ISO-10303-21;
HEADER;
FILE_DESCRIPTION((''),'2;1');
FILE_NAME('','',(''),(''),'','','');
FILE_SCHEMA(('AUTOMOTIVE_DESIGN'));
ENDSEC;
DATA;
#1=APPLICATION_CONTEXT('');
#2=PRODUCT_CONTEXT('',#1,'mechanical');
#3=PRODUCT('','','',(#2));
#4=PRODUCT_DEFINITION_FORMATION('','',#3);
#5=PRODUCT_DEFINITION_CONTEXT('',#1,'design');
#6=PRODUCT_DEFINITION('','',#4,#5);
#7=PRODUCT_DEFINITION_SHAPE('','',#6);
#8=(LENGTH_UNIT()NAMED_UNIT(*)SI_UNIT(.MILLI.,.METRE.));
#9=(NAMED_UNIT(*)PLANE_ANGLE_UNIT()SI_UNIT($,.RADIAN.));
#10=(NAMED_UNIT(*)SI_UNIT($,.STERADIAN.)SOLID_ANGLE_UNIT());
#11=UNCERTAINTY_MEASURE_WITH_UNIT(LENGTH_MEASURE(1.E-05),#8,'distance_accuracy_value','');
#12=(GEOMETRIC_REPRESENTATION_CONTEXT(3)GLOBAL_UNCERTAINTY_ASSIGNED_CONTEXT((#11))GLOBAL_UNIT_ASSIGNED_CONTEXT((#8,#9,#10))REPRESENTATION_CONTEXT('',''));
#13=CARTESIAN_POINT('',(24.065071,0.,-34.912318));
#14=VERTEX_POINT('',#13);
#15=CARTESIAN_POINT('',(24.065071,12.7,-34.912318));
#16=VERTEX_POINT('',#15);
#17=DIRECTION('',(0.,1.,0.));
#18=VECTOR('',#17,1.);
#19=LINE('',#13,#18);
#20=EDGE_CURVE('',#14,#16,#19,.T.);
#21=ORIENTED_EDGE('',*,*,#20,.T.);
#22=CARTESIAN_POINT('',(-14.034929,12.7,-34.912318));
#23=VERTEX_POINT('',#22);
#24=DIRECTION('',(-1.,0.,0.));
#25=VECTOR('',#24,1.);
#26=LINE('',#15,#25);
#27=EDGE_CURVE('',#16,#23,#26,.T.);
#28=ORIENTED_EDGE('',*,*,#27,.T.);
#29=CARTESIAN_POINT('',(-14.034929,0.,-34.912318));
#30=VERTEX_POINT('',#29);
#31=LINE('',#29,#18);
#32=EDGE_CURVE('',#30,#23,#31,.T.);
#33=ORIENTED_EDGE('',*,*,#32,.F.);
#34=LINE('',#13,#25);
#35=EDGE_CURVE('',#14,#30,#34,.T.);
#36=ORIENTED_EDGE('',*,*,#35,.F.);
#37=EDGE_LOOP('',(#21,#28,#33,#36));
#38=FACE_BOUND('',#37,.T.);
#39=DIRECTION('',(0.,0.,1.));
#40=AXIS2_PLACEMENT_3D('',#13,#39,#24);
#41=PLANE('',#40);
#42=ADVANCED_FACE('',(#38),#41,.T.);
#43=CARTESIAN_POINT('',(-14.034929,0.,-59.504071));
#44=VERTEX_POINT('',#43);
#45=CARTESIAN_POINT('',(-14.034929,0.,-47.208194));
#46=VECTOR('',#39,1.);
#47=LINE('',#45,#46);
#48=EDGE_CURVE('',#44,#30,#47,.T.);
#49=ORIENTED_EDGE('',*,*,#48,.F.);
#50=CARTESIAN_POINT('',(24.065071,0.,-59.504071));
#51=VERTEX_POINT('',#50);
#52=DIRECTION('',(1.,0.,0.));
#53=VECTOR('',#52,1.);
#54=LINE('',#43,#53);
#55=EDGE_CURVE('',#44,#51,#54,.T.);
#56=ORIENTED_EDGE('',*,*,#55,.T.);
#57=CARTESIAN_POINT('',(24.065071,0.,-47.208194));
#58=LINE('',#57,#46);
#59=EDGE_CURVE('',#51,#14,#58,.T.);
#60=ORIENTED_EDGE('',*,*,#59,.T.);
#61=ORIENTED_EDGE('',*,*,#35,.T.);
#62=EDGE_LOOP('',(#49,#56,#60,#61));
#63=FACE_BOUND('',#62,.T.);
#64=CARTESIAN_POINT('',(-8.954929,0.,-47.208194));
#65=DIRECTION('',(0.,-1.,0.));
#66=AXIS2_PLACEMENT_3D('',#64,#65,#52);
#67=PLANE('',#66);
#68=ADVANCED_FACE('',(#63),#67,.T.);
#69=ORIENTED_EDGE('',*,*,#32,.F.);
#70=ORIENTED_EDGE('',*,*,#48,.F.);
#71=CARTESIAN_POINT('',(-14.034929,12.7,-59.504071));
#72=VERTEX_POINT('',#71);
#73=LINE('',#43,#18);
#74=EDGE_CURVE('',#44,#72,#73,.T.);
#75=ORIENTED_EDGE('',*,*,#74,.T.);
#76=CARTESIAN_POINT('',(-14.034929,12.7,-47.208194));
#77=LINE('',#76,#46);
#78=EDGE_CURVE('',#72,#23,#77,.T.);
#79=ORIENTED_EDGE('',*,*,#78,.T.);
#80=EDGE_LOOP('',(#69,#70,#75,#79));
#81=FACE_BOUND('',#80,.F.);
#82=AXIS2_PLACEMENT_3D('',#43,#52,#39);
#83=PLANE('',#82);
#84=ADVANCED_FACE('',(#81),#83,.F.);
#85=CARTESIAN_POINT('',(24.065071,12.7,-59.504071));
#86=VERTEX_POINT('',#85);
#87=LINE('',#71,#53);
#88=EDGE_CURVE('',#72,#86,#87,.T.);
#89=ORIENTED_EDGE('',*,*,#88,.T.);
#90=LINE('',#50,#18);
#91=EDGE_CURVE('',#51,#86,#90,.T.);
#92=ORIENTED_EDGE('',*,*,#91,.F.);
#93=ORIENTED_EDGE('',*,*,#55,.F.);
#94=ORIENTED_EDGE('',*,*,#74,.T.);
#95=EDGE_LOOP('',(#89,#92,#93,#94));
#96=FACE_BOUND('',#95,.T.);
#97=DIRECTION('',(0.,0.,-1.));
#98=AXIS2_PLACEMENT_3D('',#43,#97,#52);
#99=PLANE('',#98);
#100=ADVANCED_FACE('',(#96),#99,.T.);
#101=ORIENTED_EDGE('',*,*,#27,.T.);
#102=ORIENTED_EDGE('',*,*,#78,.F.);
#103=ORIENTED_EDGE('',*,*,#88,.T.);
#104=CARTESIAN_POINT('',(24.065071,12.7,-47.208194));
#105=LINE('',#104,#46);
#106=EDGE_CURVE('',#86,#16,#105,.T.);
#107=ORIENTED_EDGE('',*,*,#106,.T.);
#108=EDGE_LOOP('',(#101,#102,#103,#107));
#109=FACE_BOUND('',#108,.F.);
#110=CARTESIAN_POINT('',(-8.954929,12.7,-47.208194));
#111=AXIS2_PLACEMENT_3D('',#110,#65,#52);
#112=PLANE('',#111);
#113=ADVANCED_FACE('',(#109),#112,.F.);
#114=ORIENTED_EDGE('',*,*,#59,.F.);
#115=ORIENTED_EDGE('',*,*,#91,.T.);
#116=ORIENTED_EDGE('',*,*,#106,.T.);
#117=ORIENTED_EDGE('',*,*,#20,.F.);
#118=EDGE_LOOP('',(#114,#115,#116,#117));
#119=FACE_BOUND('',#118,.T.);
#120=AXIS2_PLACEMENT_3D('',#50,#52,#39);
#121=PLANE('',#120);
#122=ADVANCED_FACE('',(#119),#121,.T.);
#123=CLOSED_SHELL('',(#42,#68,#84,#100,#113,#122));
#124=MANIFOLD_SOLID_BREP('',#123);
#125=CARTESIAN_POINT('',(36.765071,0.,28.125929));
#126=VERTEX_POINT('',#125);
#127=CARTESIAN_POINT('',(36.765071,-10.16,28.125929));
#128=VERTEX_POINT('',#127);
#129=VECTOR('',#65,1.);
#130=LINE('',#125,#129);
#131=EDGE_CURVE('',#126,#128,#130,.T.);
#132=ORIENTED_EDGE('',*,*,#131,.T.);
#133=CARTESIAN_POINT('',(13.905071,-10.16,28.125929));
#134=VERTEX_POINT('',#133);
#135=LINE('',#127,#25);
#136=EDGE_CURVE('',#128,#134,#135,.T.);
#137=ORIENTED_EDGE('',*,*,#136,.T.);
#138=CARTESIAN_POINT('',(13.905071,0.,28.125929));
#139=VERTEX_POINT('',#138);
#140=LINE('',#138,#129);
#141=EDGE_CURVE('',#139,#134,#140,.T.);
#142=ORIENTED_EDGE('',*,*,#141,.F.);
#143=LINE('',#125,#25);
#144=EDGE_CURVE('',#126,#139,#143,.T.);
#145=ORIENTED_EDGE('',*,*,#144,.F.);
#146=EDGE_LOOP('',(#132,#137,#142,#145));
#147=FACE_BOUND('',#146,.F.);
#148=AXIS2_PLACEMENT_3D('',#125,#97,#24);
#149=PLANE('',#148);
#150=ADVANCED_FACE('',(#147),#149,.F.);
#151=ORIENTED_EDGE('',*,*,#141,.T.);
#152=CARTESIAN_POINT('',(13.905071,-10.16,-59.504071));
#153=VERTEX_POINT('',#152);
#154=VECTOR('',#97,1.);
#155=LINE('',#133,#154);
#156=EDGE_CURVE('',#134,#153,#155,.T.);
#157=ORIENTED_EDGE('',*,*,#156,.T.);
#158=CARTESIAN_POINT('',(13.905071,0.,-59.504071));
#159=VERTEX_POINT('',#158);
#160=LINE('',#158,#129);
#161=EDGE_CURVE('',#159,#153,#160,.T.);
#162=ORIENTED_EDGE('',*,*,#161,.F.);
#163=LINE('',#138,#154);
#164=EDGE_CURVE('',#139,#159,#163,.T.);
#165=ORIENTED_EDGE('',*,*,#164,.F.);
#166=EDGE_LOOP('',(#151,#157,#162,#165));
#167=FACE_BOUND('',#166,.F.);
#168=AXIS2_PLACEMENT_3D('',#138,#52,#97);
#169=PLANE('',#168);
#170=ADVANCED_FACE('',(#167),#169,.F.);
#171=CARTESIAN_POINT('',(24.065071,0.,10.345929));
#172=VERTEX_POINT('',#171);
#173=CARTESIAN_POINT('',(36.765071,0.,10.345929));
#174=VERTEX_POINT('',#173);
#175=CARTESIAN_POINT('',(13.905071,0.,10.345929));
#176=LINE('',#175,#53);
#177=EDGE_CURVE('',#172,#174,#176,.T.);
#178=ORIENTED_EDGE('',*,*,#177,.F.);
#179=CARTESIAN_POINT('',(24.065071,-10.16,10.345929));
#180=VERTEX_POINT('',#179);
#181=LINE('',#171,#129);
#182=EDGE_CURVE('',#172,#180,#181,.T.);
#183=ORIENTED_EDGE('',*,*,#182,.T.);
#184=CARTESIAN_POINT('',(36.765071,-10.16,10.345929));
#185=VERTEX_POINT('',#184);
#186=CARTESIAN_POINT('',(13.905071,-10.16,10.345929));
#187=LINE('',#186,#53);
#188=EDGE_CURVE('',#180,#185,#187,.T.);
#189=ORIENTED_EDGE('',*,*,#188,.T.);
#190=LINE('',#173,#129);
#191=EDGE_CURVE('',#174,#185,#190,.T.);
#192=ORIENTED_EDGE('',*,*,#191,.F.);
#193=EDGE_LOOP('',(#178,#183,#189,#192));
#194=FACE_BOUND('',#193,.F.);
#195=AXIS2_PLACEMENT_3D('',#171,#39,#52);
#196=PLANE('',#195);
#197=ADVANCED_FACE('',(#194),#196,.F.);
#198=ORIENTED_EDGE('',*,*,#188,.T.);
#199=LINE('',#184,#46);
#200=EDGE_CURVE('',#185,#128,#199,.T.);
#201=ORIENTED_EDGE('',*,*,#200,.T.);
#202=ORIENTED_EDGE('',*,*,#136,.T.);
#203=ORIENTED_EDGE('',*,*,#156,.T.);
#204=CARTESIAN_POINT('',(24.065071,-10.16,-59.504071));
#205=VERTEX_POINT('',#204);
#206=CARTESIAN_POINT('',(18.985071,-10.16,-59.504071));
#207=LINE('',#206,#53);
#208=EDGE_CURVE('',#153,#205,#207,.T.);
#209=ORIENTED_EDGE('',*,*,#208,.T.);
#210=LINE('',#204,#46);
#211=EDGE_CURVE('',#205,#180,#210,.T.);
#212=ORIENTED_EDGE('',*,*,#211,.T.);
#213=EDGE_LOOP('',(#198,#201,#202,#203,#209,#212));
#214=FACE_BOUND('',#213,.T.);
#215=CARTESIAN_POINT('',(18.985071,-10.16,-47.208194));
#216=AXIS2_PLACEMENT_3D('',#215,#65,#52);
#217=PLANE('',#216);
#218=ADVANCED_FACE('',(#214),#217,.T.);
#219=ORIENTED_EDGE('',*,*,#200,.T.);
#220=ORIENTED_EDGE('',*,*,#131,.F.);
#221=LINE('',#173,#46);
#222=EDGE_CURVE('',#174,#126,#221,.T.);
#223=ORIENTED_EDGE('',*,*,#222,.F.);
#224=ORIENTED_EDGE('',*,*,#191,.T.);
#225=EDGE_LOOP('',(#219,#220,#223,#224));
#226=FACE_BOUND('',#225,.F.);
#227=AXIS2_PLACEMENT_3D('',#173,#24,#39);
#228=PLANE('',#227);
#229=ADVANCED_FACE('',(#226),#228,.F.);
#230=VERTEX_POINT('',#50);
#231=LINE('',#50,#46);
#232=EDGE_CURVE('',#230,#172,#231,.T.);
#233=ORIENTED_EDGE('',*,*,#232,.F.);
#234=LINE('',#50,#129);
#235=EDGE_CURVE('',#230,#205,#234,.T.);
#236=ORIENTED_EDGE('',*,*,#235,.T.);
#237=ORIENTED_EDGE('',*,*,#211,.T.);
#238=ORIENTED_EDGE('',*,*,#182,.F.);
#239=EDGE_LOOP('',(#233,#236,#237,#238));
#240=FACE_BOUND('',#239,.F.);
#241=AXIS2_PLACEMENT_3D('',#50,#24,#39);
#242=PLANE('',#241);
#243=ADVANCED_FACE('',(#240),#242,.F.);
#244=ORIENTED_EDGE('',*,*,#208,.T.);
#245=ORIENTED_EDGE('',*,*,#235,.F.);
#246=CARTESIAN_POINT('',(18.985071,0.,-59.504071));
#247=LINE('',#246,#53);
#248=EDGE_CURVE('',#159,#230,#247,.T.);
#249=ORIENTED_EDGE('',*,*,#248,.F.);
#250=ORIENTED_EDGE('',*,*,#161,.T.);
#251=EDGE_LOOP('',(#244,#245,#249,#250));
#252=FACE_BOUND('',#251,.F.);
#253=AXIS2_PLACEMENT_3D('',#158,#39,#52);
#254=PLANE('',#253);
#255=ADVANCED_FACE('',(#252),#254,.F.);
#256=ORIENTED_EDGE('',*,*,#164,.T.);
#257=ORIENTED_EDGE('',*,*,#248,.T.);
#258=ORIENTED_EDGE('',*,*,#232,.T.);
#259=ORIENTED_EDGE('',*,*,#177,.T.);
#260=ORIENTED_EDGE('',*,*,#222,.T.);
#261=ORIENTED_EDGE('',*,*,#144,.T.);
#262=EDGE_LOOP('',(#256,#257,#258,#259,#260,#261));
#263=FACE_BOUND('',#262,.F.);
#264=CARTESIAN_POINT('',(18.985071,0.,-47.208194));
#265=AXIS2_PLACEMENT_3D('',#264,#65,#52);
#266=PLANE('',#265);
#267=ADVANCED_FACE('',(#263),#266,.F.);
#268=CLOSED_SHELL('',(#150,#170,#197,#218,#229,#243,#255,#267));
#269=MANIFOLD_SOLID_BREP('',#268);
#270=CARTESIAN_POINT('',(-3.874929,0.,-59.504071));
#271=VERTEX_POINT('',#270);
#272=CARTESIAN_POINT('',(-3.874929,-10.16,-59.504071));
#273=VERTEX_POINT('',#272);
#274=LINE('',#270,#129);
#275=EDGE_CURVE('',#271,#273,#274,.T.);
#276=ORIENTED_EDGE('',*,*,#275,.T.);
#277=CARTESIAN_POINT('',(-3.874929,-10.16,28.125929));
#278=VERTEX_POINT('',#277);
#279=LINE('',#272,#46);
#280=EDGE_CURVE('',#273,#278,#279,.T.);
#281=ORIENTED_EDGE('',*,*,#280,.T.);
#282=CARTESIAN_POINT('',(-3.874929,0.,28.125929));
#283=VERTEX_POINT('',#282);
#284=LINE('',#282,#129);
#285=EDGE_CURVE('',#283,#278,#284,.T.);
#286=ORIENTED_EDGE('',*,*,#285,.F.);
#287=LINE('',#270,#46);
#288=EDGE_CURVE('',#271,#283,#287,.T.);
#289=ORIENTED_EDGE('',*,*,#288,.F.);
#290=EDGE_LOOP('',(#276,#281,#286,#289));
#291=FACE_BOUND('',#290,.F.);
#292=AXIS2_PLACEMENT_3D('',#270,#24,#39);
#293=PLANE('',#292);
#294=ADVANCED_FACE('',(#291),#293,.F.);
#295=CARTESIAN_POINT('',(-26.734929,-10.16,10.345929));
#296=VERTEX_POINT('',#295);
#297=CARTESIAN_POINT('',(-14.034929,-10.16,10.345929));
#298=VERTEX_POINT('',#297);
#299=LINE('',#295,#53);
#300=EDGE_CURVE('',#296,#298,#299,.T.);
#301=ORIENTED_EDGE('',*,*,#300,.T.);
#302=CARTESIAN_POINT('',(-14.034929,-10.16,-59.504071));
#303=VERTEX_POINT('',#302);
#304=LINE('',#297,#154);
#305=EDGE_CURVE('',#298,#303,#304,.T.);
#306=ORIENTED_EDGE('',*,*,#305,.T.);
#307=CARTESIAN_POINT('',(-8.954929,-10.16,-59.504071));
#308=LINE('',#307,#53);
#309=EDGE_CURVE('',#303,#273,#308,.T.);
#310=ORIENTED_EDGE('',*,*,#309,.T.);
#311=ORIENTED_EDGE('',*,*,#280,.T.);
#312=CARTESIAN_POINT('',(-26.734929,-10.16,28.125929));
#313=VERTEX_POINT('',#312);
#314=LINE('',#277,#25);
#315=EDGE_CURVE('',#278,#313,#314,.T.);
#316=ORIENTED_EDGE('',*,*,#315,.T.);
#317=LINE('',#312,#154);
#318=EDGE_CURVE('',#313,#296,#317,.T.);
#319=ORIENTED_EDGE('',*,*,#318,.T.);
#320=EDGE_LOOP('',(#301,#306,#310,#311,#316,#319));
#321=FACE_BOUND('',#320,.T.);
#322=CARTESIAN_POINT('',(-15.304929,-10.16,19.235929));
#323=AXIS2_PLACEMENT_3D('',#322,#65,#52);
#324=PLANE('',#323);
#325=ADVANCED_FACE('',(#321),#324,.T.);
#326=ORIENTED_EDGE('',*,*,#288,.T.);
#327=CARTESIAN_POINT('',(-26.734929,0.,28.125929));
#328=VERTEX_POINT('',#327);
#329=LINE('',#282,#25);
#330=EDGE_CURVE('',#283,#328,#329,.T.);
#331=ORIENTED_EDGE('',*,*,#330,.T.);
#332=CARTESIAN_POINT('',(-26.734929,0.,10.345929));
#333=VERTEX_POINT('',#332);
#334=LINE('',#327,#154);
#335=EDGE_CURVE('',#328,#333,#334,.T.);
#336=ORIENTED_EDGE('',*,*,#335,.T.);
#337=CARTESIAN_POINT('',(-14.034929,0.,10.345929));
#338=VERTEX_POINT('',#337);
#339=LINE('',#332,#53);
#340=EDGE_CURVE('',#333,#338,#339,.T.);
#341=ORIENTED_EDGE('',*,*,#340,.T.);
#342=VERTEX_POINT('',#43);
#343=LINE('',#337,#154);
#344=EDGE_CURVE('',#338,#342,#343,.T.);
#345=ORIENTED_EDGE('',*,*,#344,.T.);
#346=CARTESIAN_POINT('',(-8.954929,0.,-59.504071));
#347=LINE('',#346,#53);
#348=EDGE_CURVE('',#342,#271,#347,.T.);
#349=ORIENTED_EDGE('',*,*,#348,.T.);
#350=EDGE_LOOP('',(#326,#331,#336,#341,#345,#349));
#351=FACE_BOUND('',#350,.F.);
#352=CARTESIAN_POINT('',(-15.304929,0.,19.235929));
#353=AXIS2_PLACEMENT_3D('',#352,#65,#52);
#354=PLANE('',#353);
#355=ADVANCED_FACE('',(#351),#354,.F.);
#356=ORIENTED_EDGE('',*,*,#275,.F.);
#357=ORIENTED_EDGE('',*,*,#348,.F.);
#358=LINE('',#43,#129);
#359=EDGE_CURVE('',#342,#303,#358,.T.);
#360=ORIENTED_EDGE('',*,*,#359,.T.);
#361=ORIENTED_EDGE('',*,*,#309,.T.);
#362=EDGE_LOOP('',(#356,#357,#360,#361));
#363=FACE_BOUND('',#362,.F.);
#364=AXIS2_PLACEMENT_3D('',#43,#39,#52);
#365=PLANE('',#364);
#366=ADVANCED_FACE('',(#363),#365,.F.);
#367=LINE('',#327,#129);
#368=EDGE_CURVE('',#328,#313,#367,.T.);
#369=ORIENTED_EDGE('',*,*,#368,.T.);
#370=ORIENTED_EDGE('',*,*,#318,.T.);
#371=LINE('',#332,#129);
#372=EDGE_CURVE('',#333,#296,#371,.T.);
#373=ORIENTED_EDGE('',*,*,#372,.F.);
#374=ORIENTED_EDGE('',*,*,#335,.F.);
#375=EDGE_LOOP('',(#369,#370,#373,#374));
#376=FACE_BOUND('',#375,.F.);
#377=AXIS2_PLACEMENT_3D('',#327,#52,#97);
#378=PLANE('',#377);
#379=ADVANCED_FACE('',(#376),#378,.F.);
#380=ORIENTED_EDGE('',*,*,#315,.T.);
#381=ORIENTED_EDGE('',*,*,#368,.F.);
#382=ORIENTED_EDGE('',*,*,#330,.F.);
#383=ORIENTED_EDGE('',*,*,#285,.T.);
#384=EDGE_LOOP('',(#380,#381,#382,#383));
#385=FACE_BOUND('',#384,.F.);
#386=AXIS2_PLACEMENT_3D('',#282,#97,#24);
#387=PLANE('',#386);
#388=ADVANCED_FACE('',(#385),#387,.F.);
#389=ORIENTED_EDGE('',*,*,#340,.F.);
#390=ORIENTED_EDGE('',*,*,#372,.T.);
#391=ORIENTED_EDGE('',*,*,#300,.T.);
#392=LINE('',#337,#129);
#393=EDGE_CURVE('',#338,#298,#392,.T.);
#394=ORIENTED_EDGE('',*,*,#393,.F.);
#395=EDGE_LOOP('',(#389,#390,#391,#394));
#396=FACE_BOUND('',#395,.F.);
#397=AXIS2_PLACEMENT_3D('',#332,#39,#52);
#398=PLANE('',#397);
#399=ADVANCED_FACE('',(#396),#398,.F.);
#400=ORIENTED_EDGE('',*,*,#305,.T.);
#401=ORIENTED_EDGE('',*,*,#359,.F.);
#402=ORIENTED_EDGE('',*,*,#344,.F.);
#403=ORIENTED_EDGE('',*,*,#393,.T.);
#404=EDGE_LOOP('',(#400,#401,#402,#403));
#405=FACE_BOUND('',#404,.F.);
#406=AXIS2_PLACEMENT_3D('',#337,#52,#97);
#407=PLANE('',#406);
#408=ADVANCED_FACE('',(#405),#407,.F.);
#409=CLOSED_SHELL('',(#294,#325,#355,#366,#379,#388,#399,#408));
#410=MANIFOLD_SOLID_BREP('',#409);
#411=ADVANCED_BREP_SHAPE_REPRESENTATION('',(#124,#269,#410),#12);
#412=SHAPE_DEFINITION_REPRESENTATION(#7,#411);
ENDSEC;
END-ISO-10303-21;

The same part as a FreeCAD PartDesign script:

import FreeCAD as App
import Part
import Sketcher

V = App.Vector
Q = App.Units.Quantity


def add_polygon(sketch, points):
    """Adds a closed chain of lines whose ends are joined by coincident constraints."""
    first, n = sketch.GeometryCount, len(points)
    for a, b in zip(points, points[1:] + points[:1]):
        sketch.addGeometry(Part.LineSegment(App.Vector(*a, 0), App.Vector(*b, 0)), False)
    for i in range(n):
        sketch.addConstraint(Sketcher.Constraint("Coincident", first + i, 2, first + (i + 1) % n, 1))

doc = App.newDocument("Part")
params = doc.addObject("Spreadsheet::Sheet", "Params")
for row, (alias, value) in enumerate([
    ("sketch1_width", "0.9 in"),
    ("sketch1_width2", "0.5 in"),
    ("sketch1_height", "0.7 in"),
    ("sketch1_height2", "2.75 in"),
    ("pad1_length", "0.4 in"),
    ("sketch2_width", "0.4 in"),
    ("sketch2_width2", "0.5 in"),
    ("sketch2_height", "0.7 in"),
    ("sketch2_height2", "2.75 in"),
    ("pad2_length", "0.4 in"),
    ("sketch3_width", "1.5 in"),
    ("pad3_length", "0.5 in"),
], start=1):
    params.set(f"A{row}", alias)
    params.set(f"B{row}", "=" + value)
    params.setAlias(f"B{row}", alias)

body = doc.addObject("PartDesign::Body", "Body")

sketch1 = doc.addObject("Sketcher::SketchObject", "Sketch")
body.addObject(sketch1)
sketch1.AttachmentSupport = (doc.XZ_Plane, [""])
sketch1.MapMode = "FlatFace"
add_polygon(sketch1, [(-4, 28), (-27, 28), (-27, 10), (-14, 10), (-14, -60), (-4, -60)])
sketch1.addConstraint([
    Sketcher.Constraint("Horizontal", 0),
    Sketcher.Constraint("Vertical", 1),
    Sketcher.Constraint("Horizontal", 2),
    Sketcher.Constraint("Vertical", 3),
    Sketcher.Constraint("Horizontal", 4),
    Sketcher.Constraint("Vertical", 5),
    Sketcher.Constraint("DistanceX", 0, 2, 0, 1, Q("0.9 in")),
    Sketcher.Constraint("DistanceX", 2, 1, 2, 2, Q("0.5 in")),
    Sketcher.Constraint("DistanceY", 1, 2, 1, 1, Q("0.7 in")),
    Sketcher.Constraint("DistanceY", 3, 2, 3, 1, Q("2.75 in")),
    Sketcher.Constraint("DistanceX", 0, 2, -1, 1, Q("26.734929 mm")),
    Sketcher.Constraint("DistanceY", -1, 1, 0, 2, Q("28.125929 mm")),
])
sketch1.setExpression("Constraints[12]", "Params.sketch1_width")
sketch1.setExpression("Constraints[13]", "Params.sketch1_width2")
sketch1.setExpression("Constraints[14]", "Params.sketch1_height")
sketch1.setExpression("Constraints[15]", "Params.sketch1_height2")
pad1 = doc.addObject("PartDesign::Pad", "Pad")
body.addObject(pad1)
pad1.Profile = sketch1
pad1.setExpression("Length", "Params.pad1_length")
body2 = doc.addObject("PartDesign::Body", "Body001")

sketch2 = doc.addObject("Sketcher::SketchObject", "Sketch001")
body2.addObject(sketch2)
sketch2.AttachmentSupport = (doc.getObject("XZ_Plane001"), [""])
sketch2.MapMode = "FlatFace"
add_polygon(sketch2, [(14, -60), (24, -60), (24, 10), (37, 10), (37, 28), (14, 28)])
sketch2.addConstraint([
    Sketcher.Constraint("Horizontal", 0),
    Sketcher.Constraint("Vertical", 1),
    Sketcher.Constraint("Horizontal", 2),
    Sketcher.Constraint("Vertical", 3),
    Sketcher.Constraint("Horizontal", 4),
    Sketcher.Constraint("Vertical", 5),
    Sketcher.Constraint("DistanceX", 0, 1, 0, 2, Q("0.4 in")),
    Sketcher.Constraint("DistanceX", 2, 1, 2, 2, Q("0.5 in")),
    Sketcher.Constraint("DistanceY", 3, 1, 3, 2, Q("0.7 in")),
    Sketcher.Constraint("DistanceY", 1, 1, 1, 2, Q("2.75 in")),
    Sketcher.Constraint("DistanceX", -1, 1, 0, 2, Q("24.065071 mm")),
    Sketcher.Constraint("DistanceY", 0, 2, -1, 1, Q("59.504071 mm")),
])
sketch2.setExpression("Constraints[12]", "Params.sketch2_width")
sketch2.setExpression("Constraints[13]", "Params.sketch2_width2")
sketch2.setExpression("Constraints[14]", "Params.sketch2_height")
sketch2.setExpression("Constraints[15]", "Params.sketch2_height2")
pad2 = doc.addObject("PartDesign::Pad", "Pad001")
body2.addObject(pad2)
pad2.Profile = sketch2
pad2.setExpression("Length", "Params.pad2_length")
body3 = doc.addObject("PartDesign::Body", "Body002")

sketch3 = doc.addObject("Sketcher::SketchObject", "Sketch002")
body3.addObject(sketch3)
sketch3.AttachmentSupport = (doc.getObject("XZ_Plane002"), [""])
sketch3.MapMode = "FlatFace"
add_polygon(sketch3, [(-14, -35), (-14, -60), (24, -60), (24, -35)])
sketch3.addConstraint([
    Sketcher.Constraint("Vertical", 0),
    Sketcher.Constraint("Horizontal", 1),
    Sketcher.Constraint("Vertical", 2),
    Sketcher.Constraint("Horizontal", 3),
    Sketcher.Constraint("DistanceX", 1, 1, 1, 2, Q("1.5 in")),
    Sketcher.Constraint("DistanceY", 0, 2, 0, 1, Q("24.591753 mm")),
    Sketcher.Constraint("DistanceX", 0, 2, -1, 1, Q("14.034929 mm")),
    Sketcher.Constraint("DistanceY", 0, 2, -1, 1, Q("59.504071 mm")),
])
sketch3.setExpression("Constraints[8]", "Params.sketch3_width")
pad3 = doc.addObject("PartDesign::Pad", "Pad002")
body3.addObject(pad3)
pad3.Profile = sketch3
pad3.setExpression("Length", "Params.pad3_length")
pad3.Reversed = True

doc.recompute()
